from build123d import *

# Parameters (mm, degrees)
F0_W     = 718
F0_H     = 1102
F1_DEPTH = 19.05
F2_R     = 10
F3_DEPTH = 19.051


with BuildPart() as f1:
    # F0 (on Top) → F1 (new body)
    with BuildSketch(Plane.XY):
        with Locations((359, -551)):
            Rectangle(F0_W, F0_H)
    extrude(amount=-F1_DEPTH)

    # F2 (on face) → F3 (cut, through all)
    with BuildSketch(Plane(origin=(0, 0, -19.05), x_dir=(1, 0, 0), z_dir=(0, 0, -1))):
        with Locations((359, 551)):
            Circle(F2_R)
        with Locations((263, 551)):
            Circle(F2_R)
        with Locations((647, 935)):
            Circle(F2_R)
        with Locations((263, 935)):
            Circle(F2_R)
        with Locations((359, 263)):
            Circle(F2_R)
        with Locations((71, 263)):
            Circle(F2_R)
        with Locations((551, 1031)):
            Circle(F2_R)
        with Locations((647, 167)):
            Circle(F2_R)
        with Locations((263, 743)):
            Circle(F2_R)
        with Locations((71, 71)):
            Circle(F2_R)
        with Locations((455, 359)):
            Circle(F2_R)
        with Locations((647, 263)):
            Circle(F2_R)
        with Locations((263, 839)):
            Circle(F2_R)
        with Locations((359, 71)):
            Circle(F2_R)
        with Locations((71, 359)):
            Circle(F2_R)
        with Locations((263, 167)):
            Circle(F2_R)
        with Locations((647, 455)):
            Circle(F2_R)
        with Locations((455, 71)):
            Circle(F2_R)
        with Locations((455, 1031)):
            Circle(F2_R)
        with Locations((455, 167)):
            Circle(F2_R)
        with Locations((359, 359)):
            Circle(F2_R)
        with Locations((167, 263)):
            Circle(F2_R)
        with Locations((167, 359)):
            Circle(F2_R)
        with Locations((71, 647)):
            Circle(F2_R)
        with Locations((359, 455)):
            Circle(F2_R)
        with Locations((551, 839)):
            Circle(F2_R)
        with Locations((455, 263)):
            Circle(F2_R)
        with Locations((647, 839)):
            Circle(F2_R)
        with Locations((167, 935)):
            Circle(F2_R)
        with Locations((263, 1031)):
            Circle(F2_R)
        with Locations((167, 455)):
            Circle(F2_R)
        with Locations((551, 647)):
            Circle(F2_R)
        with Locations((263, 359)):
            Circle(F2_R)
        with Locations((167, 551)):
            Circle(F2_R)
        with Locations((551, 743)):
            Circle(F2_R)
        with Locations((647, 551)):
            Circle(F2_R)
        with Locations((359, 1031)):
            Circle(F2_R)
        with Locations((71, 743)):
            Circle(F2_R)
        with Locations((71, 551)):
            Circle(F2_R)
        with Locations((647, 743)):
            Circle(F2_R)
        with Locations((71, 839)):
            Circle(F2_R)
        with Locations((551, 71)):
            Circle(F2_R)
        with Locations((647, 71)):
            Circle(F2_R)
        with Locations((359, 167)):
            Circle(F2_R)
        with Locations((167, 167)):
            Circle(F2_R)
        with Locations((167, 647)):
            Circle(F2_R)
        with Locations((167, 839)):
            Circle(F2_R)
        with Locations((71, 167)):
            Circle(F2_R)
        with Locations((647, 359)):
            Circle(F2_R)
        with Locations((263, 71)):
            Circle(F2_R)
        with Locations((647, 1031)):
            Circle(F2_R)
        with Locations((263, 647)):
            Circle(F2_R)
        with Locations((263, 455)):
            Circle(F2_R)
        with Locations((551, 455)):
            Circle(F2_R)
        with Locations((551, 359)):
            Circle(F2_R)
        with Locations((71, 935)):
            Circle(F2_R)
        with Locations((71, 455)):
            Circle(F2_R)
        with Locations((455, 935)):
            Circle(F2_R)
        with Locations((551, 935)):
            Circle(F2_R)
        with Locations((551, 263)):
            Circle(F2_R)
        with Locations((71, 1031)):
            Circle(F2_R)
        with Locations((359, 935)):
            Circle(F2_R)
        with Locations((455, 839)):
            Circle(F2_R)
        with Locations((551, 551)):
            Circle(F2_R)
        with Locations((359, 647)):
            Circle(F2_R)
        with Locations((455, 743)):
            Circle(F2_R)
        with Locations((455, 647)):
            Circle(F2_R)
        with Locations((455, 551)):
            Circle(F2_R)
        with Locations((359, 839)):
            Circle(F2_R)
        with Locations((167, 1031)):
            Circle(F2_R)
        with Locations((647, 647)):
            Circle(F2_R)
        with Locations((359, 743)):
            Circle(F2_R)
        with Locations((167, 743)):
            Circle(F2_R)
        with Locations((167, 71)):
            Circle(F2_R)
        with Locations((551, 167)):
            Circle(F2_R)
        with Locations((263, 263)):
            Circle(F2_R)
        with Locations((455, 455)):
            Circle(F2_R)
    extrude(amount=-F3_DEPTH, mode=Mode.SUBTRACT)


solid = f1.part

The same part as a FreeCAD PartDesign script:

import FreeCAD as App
import Part
import Sketcher

V = App.Vector

doc = App.newDocument("Part")
params = doc.addObject("Spreadsheet::Sheet", "Params")
for row, (alias, value) in enumerate([
    ("sketch1_width", "718 mm"),
    ("sketch1_height", "1102 mm"),
    ("pad1_length", "19.05 mm"),
    ("sketch2_diameter", "20 mm"),
], start=1):
    params.set(f"A{row}", alias)
    params.set(f"B{row}", "=" + value)
    params.setAlias(f"B{row}", alias)

body = doc.addObject("PartDesign::Body", "Body")

# Sketch on XY plane
sketch1 = body.newObject("Sketcher::SketchObject", "Sketch")
sketch1.AttachmentSupport = (doc.getObject("XY_Plane"), [""])
sketch1.MapMode = "FlatFace"
sketch1.addGeometry([
    Part.LineSegment(V(0, 0, 0), V(0, -1102, 0)),
    Part.LineSegment(V(0, -1102, 0), V(718, -1102, 0)),
    Part.LineSegment(V(718, -1102, 0), V(718, 0, 0)),
    Part.LineSegment(V(718, 0, 0), V(0, 0, 0)),
], False)
sketch1.addConstraint([
    Sketcher.Constraint("Coincident", 0, 2, 1, 1),
    Sketcher.Constraint("Coincident", 1, 2, 2, 1),
    Sketcher.Constraint("Coincident", 2, 2, 3, 1),
    Sketcher.Constraint("Coincident", 3, 2, 0, 1),
    Sketcher.Constraint("Vertical", 0),
    Sketcher.Constraint("Horizontal", 1),
    Sketcher.Constraint("Vertical", 2),
    Sketcher.Constraint("Horizontal", 3),
    Sketcher.Constraint("Coincident", 3, 2, -1, 1),
    Sketcher.Constraint("DistanceX", 1, 1, 1, 2, 718.0),
    Sketcher.Constraint("DistanceY", 0, 2, 0, 1, 1102.0),
])
sketch1.setExpression("Constraints[9]", "Params.sketch1_width")
sketch1.setExpression("Constraints[10]", "Params.sketch1_height")
pad1 = body.newObject("PartDesign::Pad", "Pad")
pad1.Profile = sketch1
pad1.setExpression("Length", "Params.pad1_length")
pad1.Reversed = True

# Sketch on XY plane
sketch2 = body.newObject("Sketcher::SketchObject", "Sketch001")
sketch2.AttachmentSupport = (doc.getObject("XY_Plane"), [""])
sketch2.MapMode = "FlatFace"
sketch2.AttachmentOffset = App.Placement(V(0, 0, -19.05), App.Rotation())
sketch2.addGeometry([
    Part.Circle(V(359, -551, 0), V(0, 0, 1), 10),  # 0
    Part.Circle(V(263, -551, 0), V(0, 0, 1), 10),  # 1
    Part.Circle(V(647, -935, 0), V(0, 0, 1), 10),  # 2
    Part.Circle(V(263, -935, 0), V(0, 0, 1), 10),  # 3
    Part.Circle(V(359, -263, 0), V(0, 0, 1), 10),  # 4
    Part.Circle(V(71, -263, 0), V(0, 0, 1), 10),  # 5
    Part.Circle(V(551, -1031, 0), V(0, 0, 1), 10),  # 6
    Part.Circle(V(647, -167, 0), V(0, 0, 1), 10),  # 7
    Part.Circle(V(263, -743, 0), V(0, 0, 1), 10),  # 8
    Part.Circle(V(71, -71, 0), V(0, 0, 1), 10),  # 9
    Part.Circle(V(455, -359, 0), V(0, 0, 1), 10),  # 10
    Part.Circle(V(647, -263, 0), V(0, 0, 1), 10),  # 11
    Part.Circle(V(263, -839, 0), V(0, 0, 1), 10),  # 12
    Part.Circle(V(359, -71, 0), V(0, 0, 1), 10),  # 13
    Part.Circle(V(71, -359, 0), V(0, 0, 1), 10),  # 14
    Part.Circle(V(263, -167, 0), V(0, 0, 1), 10),  # 15
    Part.Circle(V(647, -455, 0), V(0, 0, 1), 10),  # 16
    Part.Circle(V(455, -71, 0), V(0, 0, 1), 10),  # 17
    Part.Circle(V(455, -1031, 0), V(0, 0, 1), 10),  # 18
    Part.Circle(V(455, -167, 0), V(0, 0, 1), 10),  # 19
    Part.Circle(V(359, -359, 0), V(0, 0, 1), 10),  # 20
    Part.Circle(V(167, -263, 0), V(0, 0, 1), 10),  # 21
    Part.Circle(V(167, -359, 0), V(0, 0, 1), 10),  # 22
    Part.Circle(V(71, -647, 0), V(0, 0, 1), 10),  # 23
    Part.Circle(V(359, -455, 0), V(0, 0, 1), 10),  # 24
    Part.Circle(V(551, -839, 0), V(0, 0, 1), 10),  # 25
    Part.Circle(V(455, -263, 0), V(0, 0, 1), 10),  # 26
    Part.Circle(V(647, -839, 0), V(0, 0, 1), 10),  # 27
    Part.Circle(V(167, -935, 0), V(0, 0, 1), 10),  # 28
    Part.Circle(V(263, -1031, 0), V(0, 0, 1), 10),  # 29
    Part.Circle(V(167, -455, 0), V(0, 0, 1), 10),  # 30
    Part.Circle(V(551, -647, 0), V(0, 0, 1), 10),  # 31
    Part.Circle(V(263, -359, 0), V(0, 0, 1), 10),  # 32
    Part.Circle(V(167, -551, 0), V(0, 0, 1), 10),  # 33
    Part.Circle(V(551, -743, 0), V(0, 0, 1), 10),  # 34
    Part.Circle(V(647, -551, 0), V(0, 0, 1), 10),  # 35
    Part.Circle(V(359, -1031, 0), V(0, 0, 1), 10),  # 36
    Part.Circle(V(71, -743, 0), V(0, 0, 1), 10),  # 37
    Part.Circle(V(71, -551, 0), V(0, 0, 1), 10),  # 38
    Part.Circle(V(647, -743, 0), V(0, 0, 1), 10),  # 39
    Part.Circle(V(71, -839, 0), V(0, 0, 1), 10),  # 40
    Part.Circle(V(551, -71, 0), V(0, 0, 1), 10),  # 41
    Part.Circle(V(647, -71, 0), V(0, 0, 1), 10),  # 42
    Part.Circle(V(359, -167, 0), V(0, 0, 1), 10),  # 43
    Part.Circle(V(167, -167, 0), V(0, 0, 1), 10),  # 44
    Part.Circle(V(167, -647, 0), V(0, 0, 1), 10),  # 45
    Part.Circle(V(167, -839, 0), V(0, 0, 1), 10),  # 46
    Part.Circle(V(71, -167, 0), V(0, 0, 1), 10),  # 47
    Part.Circle(V(647, -359, 0), V(0, 0, 1), 10),  # 48
    Part.Circle(V(263, -71, 0), V(0, 0, 1), 10),  # 49
    Part.Circle(V(647, -1031, 0), V(0, 0, 1), 10),  # 50
    Part.Circle(V(263, -647, 0), V(0, 0, 1), 10),  # 51
    Part.Circle(V(263, -455, 0), V(0, 0, 1), 10),  # 52
    Part.Circle(V(551, -455, 0), V(0, 0, 1), 10),  # 53
    Part.Circle(V(551, -359, 0), V(0, 0, 1), 10),  # 54
    Part.Circle(V(71, -935, 0), V(0, 0, 1), 10),  # 55
    Part.Circle(V(71, -455, 0), V(0, 0, 1), 10),  # 56
    Part.Circle(V(455, -935, 0), V(0, 0, 1), 10),  # 57
    Part.Circle(V(551, -935, 0), V(0, 0, 1), 10),  # 58
    Part.Circle(V(551, -263, 0), V(0, 0, 1), 10),  # 59
    Part.Circle(V(71, -1031, 0), V(0, 0, 1), 10),  # 60
    Part.Circle(V(359, -935, 0), V(0, 0, 1), 10),  # 61
    Part.Circle(V(455, -839, 0), V(0, 0, 1), 10),  # 62
    Part.Circle(V(551, -551, 0), V(0, 0, 1), 10),  # 63
    Part.Circle(V(359, -647, 0), V(0, 0, 1), 10),  # 64
    Part.Circle(V(455, -743, 0), V(0, 0, 1), 10),  # 65
    Part.Circle(V(455, -647, 0), V(0, 0, 1), 10),  # 66
    Part.Circle(V(455, -551, 0), V(0, 0, 1), 10),  # 67
    Part.Circle(V(359, -839, 0), V(0, 0, 1), 10),  # 68
    Part.Circle(V(167, -1031, 0), V(0, 0, 1), 10),  # 69
    Part.Circle(V(647, -647, 0), V(0, 0, 1), 10),  # 70
    Part.Circle(V(359, -743, 0), V(0, 0, 1), 10),  # 71
    Part.Circle(V(167, -743, 0), V(0, 0, 1), 10),  # 72
    Part.Circle(V(167, -71, 0), V(0, 0, 1), 10),  # 73
    Part.Circle(V(551, -167, 0), V(0, 0, 1), 10),  # 74
    Part.Circle(V(263, -263, 0), V(0, 0, 1), 10),  # 75
    Part.Circle(V(455, -455, 0), V(0, 0, 1), 10),  # 76
], False)
sketch2.addConstraint([
    Sketcher.Constraint("Equal", 0, 1),
    Sketcher.Constraint("Equal", 1, 2),
    Sketcher.Constraint("Equal", 2, 3),
    Sketcher.Constraint("Equal", 3, 4),
    Sketcher.Constraint("Equal", 4, 5),
    Sketcher.Constraint("Equal", 5, 6),
    Sketcher.Constraint("Equal", 6, 7),
    Sketcher.Constraint("Equal", 7, 8),
    Sketcher.Constraint("Equal", 8, 9),
    Sketcher.Constraint("Equal", 9, 10),
    Sketcher.Constraint("Equal", 10, 11),
    Sketcher.Constraint("Equal", 11, 12),
    Sketcher.Constraint("Equal", 12, 13),
    Sketcher.Constraint("Equal", 13, 14),
    Sketcher.Constraint("Equal", 14, 15),
    Sketcher.Constraint("Equal", 15, 16),
    Sketcher.Constraint("Equal", 16, 17),
    Sketcher.Constraint("Equal", 17, 18),
    Sketcher.Constraint("Equal", 18, 19),
    Sketcher.Constraint("Equal", 19, 20),
    Sketcher.Constraint("Equal", 20, 21),
    Sketcher.Constraint("Equal", 21, 22),
    Sketcher.Constraint("Equal", 22, 23),
    Sketcher.Constraint("Equal", 23, 24),
    Sketcher.Constraint("Equal", 24, 25),
    Sketcher.Constraint("Equal", 25, 26),
    Sketcher.Constraint("Equal", 26, 27),
    Sketcher.Constraint("Equal", 27, 28),
    Sketcher.Constraint("Equal", 28, 29),
    Sketcher.Constraint("Equal", 29, 30),
    Sketcher.Constraint("Equal", 30, 31),
    Sketcher.Constraint("Equal", 31, 32),
    Sketcher.Constraint("Equal", 32, 33),
    Sketcher.Constraint("Equal", 33, 34),
    Sketcher.Constraint("Equal", 34, 35),
    Sketcher.Constraint("Equal", 35, 36),
    Sketcher.Constraint("Equal", 36, 37),
    Sketcher.Constraint("Equal", 37, 38),
    Sketcher.Constraint("Equal", 38, 39),
    Sketcher.Constraint("Equal", 39, 40),
    Sketcher.Constraint("Equal", 40, 41),
    Sketcher.Constraint("Equal", 41, 42),
    Sketcher.Constraint("Equal", 42, 43),
    Sketcher.Constraint("Equal", 43, 44),
    Sketcher.Constraint("Equal", 44, 45),
    Sketcher.Constraint("Equal", 45, 46),
    Sketcher.Constraint("Equal", 46, 47),
    Sketcher.Constraint("Equal", 47, 48),
    Sketcher.Constraint("Equal", 48, 49),
    Sketcher.Constraint("Equal", 49, 50),
    Sketcher.Constraint("Equal", 50, 51),
    Sketcher.Constraint("Equal", 51, 52),
    Sketcher.Constraint("Equal", 52, 53),
    Sketcher.Constraint("Equal", 53, 54),
    Sketcher.Constraint("Equal", 54, 55),
    Sketcher.Constraint("Equal", 55, 56),
    Sketcher.Constraint("Equal", 56, 57),
    Sketcher.Constraint("Equal", 57, 58),
    Sketcher.Constraint("Equal", 58, 59),
    Sketcher.Constraint("Equal", 59, 60),
    Sketcher.Constraint("Equal", 60, 61),
    Sketcher.Constraint("Equal", 61, 62),
    Sketcher.Constraint("Equal", 62, 63),
    Sketcher.Constraint("Equal", 63, 64),
    Sketcher.Constraint("Equal", 64, 65),
    Sketcher.Constraint("Equal", 65, 66),
    Sketcher.Constraint("Equal", 66, 67),
    Sketcher.Constraint("Equal", 67, 68),
    Sketcher.Constraint("Equal", 68, 69),
    Sketcher.Constraint("Equal", 69, 70),
    Sketcher.Constraint("Equal", 70, 71),
    Sketcher.Constraint("Equal", 71, 72),
    Sketcher.Constraint("Equal", 72, 73),
    Sketcher.Constraint("Equal", 73, 74),
    Sketcher.Constraint("Equal", 74, 75),
    Sketcher.Constraint("Equal", 75, 76),
    Sketcher.Constraint("Horizontal", 0, 3, 1, 3),
    Sketcher.Constraint("Horizontal", 2, 3, 3, 3),
    Sketcher.Constraint("Horizontal", 4, 3, 5, 3),
    Sketcher.Constraint("Horizontal", 5, 3, 11, 3),
    Sketcher.Constraint("Horizontal", 9, 3, 13, 3),
    Sketcher.Constraint("Horizontal", 10, 3, 14, 3),
    Sketcher.Constraint("Horizontal", 7, 3, 15, 3),
    Sketcher.Constraint("Horizontal", 13, 3, 17, 3),
    Sketcher.Constraint("Horizontal", 6, 3, 18, 3),
    Sketcher.Constraint("Horizontal", 15, 3, 19, 3),
    Sketcher.Constraint("Horizontal", 14, 3, 20, 3),
    Sketcher.Constraint("Horizontal", 11, 3, 21, 3),
    Sketcher.Constraint("Horizontal", 20, 3, 22, 3),
    Sketcher.Constraint("Horizontal", 16, 3, 24, 3),
    Sketcher.Constraint("Horizontal", 12, 3, 25, 3),
    Sketcher.Constraint("Horizontal", 21, 3, 26, 3),
    Sketcher.Constraint("Horizontal", 25, 3, 27, 3),
    Sketcher.Constraint("Horizontal", 3, 3, 28, 3),
    Sketcher.Constraint("Horizontal", 18, 3, 29, 3),
    Sketcher.Constraint("Horizontal", 24, 3, 30, 3),
    Sketcher.Constraint("Horizontal", 23, 3, 31, 3),
    Sketcher.Constraint("Horizontal", 22, 3, 32, 3),
    Sketcher.Constraint("Horizontal", 1, 3, 33, 3),
    Sketcher.Constraint("Horizontal", 8, 3, 34, 3),
    Sketcher.Constraint("Horizontal", 33, 3, 35, 3),
    Sketcher.Constraint("Horizontal", 29, 3, 36, 3),
    Sketcher.Constraint("Horizontal", 34, 3, 37, 3),
    Sketcher.Constraint("Horizontal", 35, 3, 38, 3),
    Sketcher.Constraint("Horizontal", 37, 3, 39, 3),
    Sketcher.Constraint("Horizontal", 27, 3, 40, 3),
    Sketcher.Constraint("Horizontal", 17, 3, 41, 3),
    Sketcher.Constraint("Horizontal", 41, 3, 42, 3),
    Sketcher.Constraint("Horizontal", 19, 3, 43, 3),
    Sketcher.Constraint("Horizontal", 43, 3, 44, 3),
    Sketcher.Constraint("Horizontal", 31, 3, 45, 3),
    Sketcher.Constraint("Horizontal", 40, 3, 46, 3),
    Sketcher.Constraint("Horizontal", 44, 3, 47, 3),
    Sketcher.Constraint("Horizontal", 32, 3, 48, 3),
    Sketcher.Constraint("Horizontal", 42, 3, 49, 3),
    Sketcher.Constraint("Horizontal", 36, 3, 50, 3),
    Sketcher.Constraint("Horizontal", 45, 3, 51, 3),
    Sketcher.Constraint("Horizontal", 30, 3, 52, 3),
    Sketcher.Constraint("Horizontal", 52, 3, 53, 3),
    Sketcher.Constraint("Horizontal", 48, 3, 54, 3),
    Sketcher.Constraint("Horizontal", 28, 3, 55, 3),
    Sketcher.Constraint("Horizontal", 53, 3, 56, 3),
    Sketcher.Constraint("Horizontal", 55, 3, 57, 3),
    Sketcher.Constraint("Horizontal", 57, 3, 58, 3),
    Sketcher.Constraint("Horizontal", 26, 3, 59, 3),
    Sketcher.Constraint("Horizontal", 50, 3, 60, 3),
    Sketcher.Constraint("Horizontal", 58, 3, 61, 3),
    Sketcher.Constraint("Horizontal", 46, 3, 62, 3),
    Sketcher.Constraint("Horizontal", 38, 3, 63, 3),
    Sketcher.Constraint("Horizontal", 51, 3, 64, 3),
    Sketcher.Constraint("Horizontal", 39, 3, 65, 3),
    Sketcher.Constraint("Horizontal", 64, 3, 66, 3),
    Sketcher.Constraint("Horizontal", 63, 3, 67, 3),
    Sketcher.Constraint("Horizontal", 62, 3, 68, 3),
    Sketcher.Constraint("Horizontal", 60, 3, 69, 3),
    Sketcher.Constraint("Horizontal", 66, 3, 70, 3),
    Sketcher.Constraint("Horizontal", 65, 3, 71, 3),
    Sketcher.Constraint("Horizontal", 71, 3, 72, 3),
    Sketcher.Constraint("Horizontal", 49, 3, 73, 3),
    Sketcher.Constraint("Horizontal", 47, 3, 74, 3),
    Sketcher.Constraint("Horizontal", 59, 3, 75, 3),
    Sketcher.Constraint("Horizontal", 56, 3, 76, 3),
    Sketcher.Constraint("Vertical", 1, 3, 3, 3),
    Sketcher.Constraint("Vertical", 0, 3, 4, 3),
    Sketcher.Constraint("Vertical", 2, 3, 7, 3),
    Sketcher.Constraint("Vertical", 3, 3, 8, 3),
    Sketcher.Constraint("Vertical", 5, 3, 9, 3),
    Sketcher.Constraint("Vertical", 7, 3, 11, 3),
    Sketcher.Constraint("Vertical", 8, 3, 12, 3),
    Sketcher.Constraint("Vertical", 4, 3, 13, 3),
    Sketcher.Constraint("Vertical", 9, 3, 14, 3),
    Sketcher.Constraint("Vertical", 12, 3, 15, 3),
    Sketcher.Constraint("Vertical", 11, 3, 16, 3),
    Sketcher.Constraint("Vertical", 10, 3, 17, 3),
    Sketcher.Constraint("Vertical", 17, 3, 18, 3),
    Sketcher.Constraint("Vertical", 18, 3, 19, 3),
    Sketcher.Constraint("Vertical", 13, 3, 20, 3),
    Sketcher.Constraint("Vertical", 21, 3, 22, 3),
    Sketcher.Constraint("Vertical", 14, 3, 23, 3),
    Sketcher.Constraint("Vertical", 20, 3, 24, 3),
    Sketcher.Constraint("Vertical", 6, 3, 25, 3),
    Sketcher.Constraint("Vertical", 19, 3, 26, 3),
    Sketcher.Constraint("Vertical", 16, 3, 27, 3),
    Sketcher.Constraint("Vertical", 22, 3, 28, 3),
    Sketcher.Constraint("Vertical", 15, 3, 29, 3),
    Sketcher.Constraint("Vertical", 28, 3, 30, 3),
    Sketcher.Constraint("Vertical", 25, 3, 31, 3),
    Sketcher.Constraint("Vertical", 29, 3, 32, 3),
    Sketcher.Constraint("Vertical", 30, 3, 33, 3),
    Sketcher.Constraint("Vertical", 31, 3, 34, 3),
    Sketcher.Constraint("Vertical", 27, 3, 35, 3),
    Sketcher.Constraint("Vertical", 24, 3, 36, 3),
    Sketcher.Constraint("Vertical", 23, 3, 37, 3),
    Sketcher.Constraint("Vertical", 37, 3, 38, 3),
    Sketcher.Constraint("Vertical", 35, 3, 39, 3),
    Sketcher.Constraint("Vertical", 38, 3, 40, 3),
    Sketcher.Constraint("Vertical", 34, 3, 41, 3),
    Sketcher.Constraint("Vertical", 39, 3, 42, 3),
    Sketcher.Constraint("Vertical", 36, 3, 43, 3),
    Sketcher.Constraint("Vertical", 33, 3, 44, 3),
    Sketcher.Constraint("Vertical", 44, 3, 45, 3),
    Sketcher.Constraint("Vertical", 45, 3, 46, 3),
    Sketcher.Constraint("Vertical", 40, 3, 47, 3),
    Sketcher.Constraint("Vertical", 42, 3, 48, 3),
    Sketcher.Constraint("Vertical", 32, 3, 49, 3),
    Sketcher.Constraint("Vertical", 48, 3, 50, 3),
    Sketcher.Constraint("Vertical", 49, 3, 51, 3),
    Sketcher.Constraint("Vertical", 51, 3, 52, 3),
    Sketcher.Constraint("Vertical", 41, 3, 53, 3),
    Sketcher.Constraint("Vertical", 53, 3, 54, 3),
    Sketcher.Constraint("Vertical", 47, 3, 55, 3),
    Sketcher.Constraint("Vertical", 55, 3, 56, 3),
    Sketcher.Constraint("Vertical", 26, 3, 57, 3),
    Sketcher.Constraint("Vertical", 54, 3, 58, 3),
    Sketcher.Constraint("Vertical", 58, 3, 59, 3),
    Sketcher.Constraint("Vertical", 56, 3, 60, 3),
    Sketcher.Constraint("Vertical", 43, 3, 61, 3),
    Sketcher.Constraint("Vertical", 57, 3, 62, 3),
    Sketcher.Constraint("Vertical", 59, 3, 63, 3),
    Sketcher.Constraint("Vertical", 61, 3, 64, 3),
    Sketcher.Constraint("Vertical", 62, 3, 65, 3),
    Sketcher.Constraint("Vertical", 65, 3, 66, 3),
    Sketcher.Constraint("Vertical", 66, 3, 67, 3),
    Sketcher.Constraint("Vertical", 64, 3, 68, 3),
    Sketcher.Constraint("Vertical", 46, 3, 69, 3),
    Sketcher.Constraint("Vertical", 50, 3, 70, 3),
    Sketcher.Constraint("Vertical", 68, 3, 71, 3),
    Sketcher.Constraint("Vertical", 69, 3, 72, 3),
    Sketcher.Constraint("Vertical", 72, 3, 73, 3),
    Sketcher.Constraint("Vertical", 63, 3, 74, 3),
    Sketcher.Constraint("Vertical", 52, 3, 75, 3),
    Sketcher.Constraint("Vertical", 67, 3, 76, 3),
    Sketcher.Constraint("Diameter", 0, 20.0),
    Sketcher.Constraint("DistanceX", -1, 1, 0, 3, 359.0),
    Sketcher.Constraint("DistanceY", 0, 3, -1, 1, 551.0),
    Sketcher.Constraint("DistanceX", -1, 1, 1, 3, 263.0),
    Sketcher.Constraint("DistanceX", -1, 1, 2, 3, 647.0),
    Sketcher.Constraint("DistanceY", 2, 3, -1, 1, 935.0),
    Sketcher.Constraint("DistanceY", 4, 3, -1, 1, 263.0),
    Sketcher.Constraint("DistanceX", -1, 1, 5, 3, 71.0),
    Sketcher.Constraint("DistanceX", -1, 1, 6, 3, 551.0),
    Sketcher.Constraint("DistanceY", 6, 3, -1, 1, 1031.0),
    Sketcher.Constraint("DistanceY", 7, 3, -1, 1, 167.0),
    Sketcher.Constraint("DistanceY", 8, 3, -1, 1, 743.0),
    Sketcher.Constraint("DistanceY", 9, 3, -1, 1, 71.0),
    Sketcher.Constraint("DistanceX", -1, 1, 10, 3, 455.0),
    Sketcher.Constraint("DistanceY", 10, 3, -1, 1, 359.0),
    Sketcher.Constraint("DistanceY", 12, 3, -1, 1, 839.0),
    Sketcher.Constraint("DistanceY", 16, 3, -1, 1, 455.0),
    Sketcher.Constraint("DistanceX", -1, 1, 21, 3, 167.0),
    Sketcher.Constraint("DistanceY", 23, 3, -1, 1, 647.0),
])
sketch2.setExpression("Constraints[212]", "Params.sketch2_diameter")
pocket1 = body.newObject("PartDesign::Pocket", "Pocket")
pocket1.Profile = sketch2
pocket1.Type = "ThroughAll"
pocket1.Reversed = True

doc.recompute()
